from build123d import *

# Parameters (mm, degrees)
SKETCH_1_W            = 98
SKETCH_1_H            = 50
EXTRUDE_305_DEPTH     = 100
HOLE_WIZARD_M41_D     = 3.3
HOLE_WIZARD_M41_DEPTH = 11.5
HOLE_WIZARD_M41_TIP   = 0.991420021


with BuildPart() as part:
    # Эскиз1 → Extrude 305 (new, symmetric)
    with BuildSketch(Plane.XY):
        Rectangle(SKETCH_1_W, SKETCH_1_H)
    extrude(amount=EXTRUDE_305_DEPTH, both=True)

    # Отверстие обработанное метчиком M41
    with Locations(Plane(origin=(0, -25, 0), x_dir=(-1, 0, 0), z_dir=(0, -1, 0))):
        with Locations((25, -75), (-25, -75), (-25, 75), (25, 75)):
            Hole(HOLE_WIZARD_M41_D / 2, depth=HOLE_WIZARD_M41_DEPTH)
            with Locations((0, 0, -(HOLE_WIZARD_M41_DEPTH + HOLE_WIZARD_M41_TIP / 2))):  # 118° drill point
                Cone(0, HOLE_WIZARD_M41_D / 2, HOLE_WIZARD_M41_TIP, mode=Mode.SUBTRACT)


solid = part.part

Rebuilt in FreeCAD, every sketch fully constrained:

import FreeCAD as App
import Part
import Sketcher

V = App.Vector


def add_polygon(sketch, points):
    """Adds a closed chain of lines whose ends are joined by coincident constraints."""
    first, n = sketch.GeometryCount, len(points)
    for a, b in zip(points, points[1:] + points[:1]):
        sketch.addGeometry(Part.LineSegment(App.Vector(*a, 0), App.Vector(*b, 0)), False)
    for i in range(n):
        sketch.addConstraint(Sketcher.Constraint("Coincident", first + i, 2, first + (i + 1) % n, 1))

doc = App.newDocument("Part")
body = doc.addObject("PartDesign::Body", "Body")

# Sketch on XY plane
sketch1 = doc.addObject("Sketcher::SketchObject", "Sketch")
body.addObject(sketch1)
sketch1.AttachmentSupport = (doc.XY_Plane, [""])
sketch1.MapMode = "FlatFace"
add_polygon(sketch1, [(-49, 25), (-49, -25), (49, -25), (49, 25)])  # lines 0-3
sketch1.addConstraint([
    Sketcher.Constraint("Vertical", 0),
    Sketcher.Constraint("Horizontal", 1),
    Sketcher.Constraint("Vertical", 2),
    Sketcher.Constraint("Horizontal", 3),
    Sketcher.Constraint("Symmetric", 0, 2, 2, 2, -1, 1),
    Sketcher.Constraint("DistanceX", 1, 1, 1, 2, 98.0),
    Sketcher.Constraint("DistanceY", 0, 2, 0, 1, 50.0),
])
pad1 = doc.addObject("PartDesign::Pad", "Pad")
body.addObject(pad1)
pad1.Profile = sketch1
pad1.Length = 200
pad1.Midplane = True

# Sketch on XZ plane
sketch2 = doc.addObject("Sketcher::SketchObject", "Sketch001")
body.addObject(sketch2)
sketch2.AttachmentSupport = (doc.XZ_Plane, [""])
sketch2.MapMode = "FlatFace"
sketch2.AttachmentOffset = App.Placement(V(0, 0, 25), App.Rotation())
sketch2.addGeometry([
    Part.Circle(V(-25, 75, 0), V(0, 0, 1), 1.6),
    Part.Circle(V(25, 75, 0), V(0, 0, 1), 1.6),
    Part.Circle(V(25, -75, 0), V(0, 0, 1), 1.6),
    Part.Circle(V(-25, -75, 0), V(0, 0, 1), 1.6),
], False)
sketch2.addConstraint([
    Sketcher.Constraint("Equal", 0, 1),
    Sketcher.Constraint("Equal", 1, 2),
    Sketcher.Constraint("Equal", 2, 3),
    Sketcher.Constraint("Symmetric", 0, 3, 2, 3, -1, 1),
    Sketcher.Constraint("Symmetric", 1, 3, 3, 3, -1, 1),
    Sketcher.Constraint("Symmetric", 0, 3, 1, 3, -2),
    Sketcher.Constraint("Diameter", 0, 3.3),
    Sketcher.Constraint("DistanceX", 0, 3, -1, 1, 25.0),
    Sketcher.Constraint("DistanceY", -1, 1, 0, 3, 75.0),
])
doc.recompute()
hole = doc.addObject("PartDesign::Hole", "Hole")
body.addObject(hole)
hole.Profile = sketch2
hole.ThreadType = "None"
hole.Diameter = 3.3
hole.DepthType = "Dimension"
hole.Depth = 11.5
hole.DrillPoint = "Angled"
hole.DrillPointAngle = 118

doc.recompute()
